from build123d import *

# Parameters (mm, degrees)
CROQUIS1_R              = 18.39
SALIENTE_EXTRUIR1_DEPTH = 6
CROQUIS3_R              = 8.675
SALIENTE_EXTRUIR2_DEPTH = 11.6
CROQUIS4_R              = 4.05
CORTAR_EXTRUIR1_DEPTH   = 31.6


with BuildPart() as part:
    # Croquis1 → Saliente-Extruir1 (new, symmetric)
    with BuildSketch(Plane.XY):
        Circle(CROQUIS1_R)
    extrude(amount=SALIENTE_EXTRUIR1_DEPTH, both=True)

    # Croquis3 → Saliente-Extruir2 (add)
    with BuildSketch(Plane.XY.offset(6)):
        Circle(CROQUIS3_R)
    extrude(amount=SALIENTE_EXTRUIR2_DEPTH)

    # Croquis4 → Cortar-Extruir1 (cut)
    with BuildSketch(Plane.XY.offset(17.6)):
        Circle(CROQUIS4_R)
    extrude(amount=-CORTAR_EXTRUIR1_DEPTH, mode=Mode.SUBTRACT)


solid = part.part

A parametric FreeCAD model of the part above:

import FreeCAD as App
import Part
import Sketcher

V = App.Vector
Q = App.Units.Quantity

doc = App.newDocument("Part")
body = doc.addObject("PartDesign::Body", "Body")

sketch1 = doc.addObject("Sketcher::SketchObject", "Sketch")
body.addObject(sketch1)
sketch1.AttachmentSupport = (doc.XY_Plane, [""])
sketch1.MapMode = "FlatFace"
sketch1.addGeometry(Part.Circle(V(0, 0, 0), V(0, 0, 1), 18), False)
sketch1.addConstraint([
    Sketcher.Constraint("Coincident", 0, 3, -1, 1),
    Sketcher.Constraint("Diameter", 0, Q("36.78 mm")),
])
pad1 = doc.addObject("PartDesign::Pad", "Pad")
body.addObject(pad1)
pad1.Profile = sketch1
pad1.Length = 12
pad1.Midplane = True

sketch2 = doc.addObject("Sketcher::SketchObject", "Sketch001")
body.addObject(sketch2)
sketch2.AttachmentSupport = (doc.XY_Plane, [""])
sketch2.MapMode = "FlatFace"
sketch2.AttachmentOffset = App.Placement(V(0, 0, 6), App.Rotation())
sketch2.addGeometry(Part.Circle(V(0, 0, 0), V(0, 0, 1), 9), False)
sketch2.addConstraint([
    Sketcher.Constraint("Coincident", 0, 3, -1, 1),
    Sketcher.Constraint("Diameter", 0, Q("17.35 mm")),
])
pad2 = doc.addObject("PartDesign::Pad", "Pad001")
body.addObject(pad2)
pad2.Profile = sketch2
pad2.Length = 11.6

sketch3 = doc.addObject("Sketcher::SketchObject", "Sketch002")
body.addObject(sketch3)
sketch3.AttachmentSupport = (doc.XY_Plane, [""])
sketch3.MapMode = "FlatFace"
sketch3.AttachmentOffset = App.Placement(V(0, 0, 17.6), App.Rotation())
sketch3.addGeometry(Part.Circle(V(0, 0, 0), V(0, 0, 1), 4), False)
sketch3.addConstraint([
    Sketcher.Constraint("Coincident", 0, 3, -1, 1),
    Sketcher.Constraint("Diameter", 0, Q("8.1 mm")),
])
pocket1 = doc.addObject("PartDesign::Pocket", "Pocket")
body.addObject(pocket1)
pocket1.Profile = sketch3
pocket1.Length = 31.6

doc.recompute()
